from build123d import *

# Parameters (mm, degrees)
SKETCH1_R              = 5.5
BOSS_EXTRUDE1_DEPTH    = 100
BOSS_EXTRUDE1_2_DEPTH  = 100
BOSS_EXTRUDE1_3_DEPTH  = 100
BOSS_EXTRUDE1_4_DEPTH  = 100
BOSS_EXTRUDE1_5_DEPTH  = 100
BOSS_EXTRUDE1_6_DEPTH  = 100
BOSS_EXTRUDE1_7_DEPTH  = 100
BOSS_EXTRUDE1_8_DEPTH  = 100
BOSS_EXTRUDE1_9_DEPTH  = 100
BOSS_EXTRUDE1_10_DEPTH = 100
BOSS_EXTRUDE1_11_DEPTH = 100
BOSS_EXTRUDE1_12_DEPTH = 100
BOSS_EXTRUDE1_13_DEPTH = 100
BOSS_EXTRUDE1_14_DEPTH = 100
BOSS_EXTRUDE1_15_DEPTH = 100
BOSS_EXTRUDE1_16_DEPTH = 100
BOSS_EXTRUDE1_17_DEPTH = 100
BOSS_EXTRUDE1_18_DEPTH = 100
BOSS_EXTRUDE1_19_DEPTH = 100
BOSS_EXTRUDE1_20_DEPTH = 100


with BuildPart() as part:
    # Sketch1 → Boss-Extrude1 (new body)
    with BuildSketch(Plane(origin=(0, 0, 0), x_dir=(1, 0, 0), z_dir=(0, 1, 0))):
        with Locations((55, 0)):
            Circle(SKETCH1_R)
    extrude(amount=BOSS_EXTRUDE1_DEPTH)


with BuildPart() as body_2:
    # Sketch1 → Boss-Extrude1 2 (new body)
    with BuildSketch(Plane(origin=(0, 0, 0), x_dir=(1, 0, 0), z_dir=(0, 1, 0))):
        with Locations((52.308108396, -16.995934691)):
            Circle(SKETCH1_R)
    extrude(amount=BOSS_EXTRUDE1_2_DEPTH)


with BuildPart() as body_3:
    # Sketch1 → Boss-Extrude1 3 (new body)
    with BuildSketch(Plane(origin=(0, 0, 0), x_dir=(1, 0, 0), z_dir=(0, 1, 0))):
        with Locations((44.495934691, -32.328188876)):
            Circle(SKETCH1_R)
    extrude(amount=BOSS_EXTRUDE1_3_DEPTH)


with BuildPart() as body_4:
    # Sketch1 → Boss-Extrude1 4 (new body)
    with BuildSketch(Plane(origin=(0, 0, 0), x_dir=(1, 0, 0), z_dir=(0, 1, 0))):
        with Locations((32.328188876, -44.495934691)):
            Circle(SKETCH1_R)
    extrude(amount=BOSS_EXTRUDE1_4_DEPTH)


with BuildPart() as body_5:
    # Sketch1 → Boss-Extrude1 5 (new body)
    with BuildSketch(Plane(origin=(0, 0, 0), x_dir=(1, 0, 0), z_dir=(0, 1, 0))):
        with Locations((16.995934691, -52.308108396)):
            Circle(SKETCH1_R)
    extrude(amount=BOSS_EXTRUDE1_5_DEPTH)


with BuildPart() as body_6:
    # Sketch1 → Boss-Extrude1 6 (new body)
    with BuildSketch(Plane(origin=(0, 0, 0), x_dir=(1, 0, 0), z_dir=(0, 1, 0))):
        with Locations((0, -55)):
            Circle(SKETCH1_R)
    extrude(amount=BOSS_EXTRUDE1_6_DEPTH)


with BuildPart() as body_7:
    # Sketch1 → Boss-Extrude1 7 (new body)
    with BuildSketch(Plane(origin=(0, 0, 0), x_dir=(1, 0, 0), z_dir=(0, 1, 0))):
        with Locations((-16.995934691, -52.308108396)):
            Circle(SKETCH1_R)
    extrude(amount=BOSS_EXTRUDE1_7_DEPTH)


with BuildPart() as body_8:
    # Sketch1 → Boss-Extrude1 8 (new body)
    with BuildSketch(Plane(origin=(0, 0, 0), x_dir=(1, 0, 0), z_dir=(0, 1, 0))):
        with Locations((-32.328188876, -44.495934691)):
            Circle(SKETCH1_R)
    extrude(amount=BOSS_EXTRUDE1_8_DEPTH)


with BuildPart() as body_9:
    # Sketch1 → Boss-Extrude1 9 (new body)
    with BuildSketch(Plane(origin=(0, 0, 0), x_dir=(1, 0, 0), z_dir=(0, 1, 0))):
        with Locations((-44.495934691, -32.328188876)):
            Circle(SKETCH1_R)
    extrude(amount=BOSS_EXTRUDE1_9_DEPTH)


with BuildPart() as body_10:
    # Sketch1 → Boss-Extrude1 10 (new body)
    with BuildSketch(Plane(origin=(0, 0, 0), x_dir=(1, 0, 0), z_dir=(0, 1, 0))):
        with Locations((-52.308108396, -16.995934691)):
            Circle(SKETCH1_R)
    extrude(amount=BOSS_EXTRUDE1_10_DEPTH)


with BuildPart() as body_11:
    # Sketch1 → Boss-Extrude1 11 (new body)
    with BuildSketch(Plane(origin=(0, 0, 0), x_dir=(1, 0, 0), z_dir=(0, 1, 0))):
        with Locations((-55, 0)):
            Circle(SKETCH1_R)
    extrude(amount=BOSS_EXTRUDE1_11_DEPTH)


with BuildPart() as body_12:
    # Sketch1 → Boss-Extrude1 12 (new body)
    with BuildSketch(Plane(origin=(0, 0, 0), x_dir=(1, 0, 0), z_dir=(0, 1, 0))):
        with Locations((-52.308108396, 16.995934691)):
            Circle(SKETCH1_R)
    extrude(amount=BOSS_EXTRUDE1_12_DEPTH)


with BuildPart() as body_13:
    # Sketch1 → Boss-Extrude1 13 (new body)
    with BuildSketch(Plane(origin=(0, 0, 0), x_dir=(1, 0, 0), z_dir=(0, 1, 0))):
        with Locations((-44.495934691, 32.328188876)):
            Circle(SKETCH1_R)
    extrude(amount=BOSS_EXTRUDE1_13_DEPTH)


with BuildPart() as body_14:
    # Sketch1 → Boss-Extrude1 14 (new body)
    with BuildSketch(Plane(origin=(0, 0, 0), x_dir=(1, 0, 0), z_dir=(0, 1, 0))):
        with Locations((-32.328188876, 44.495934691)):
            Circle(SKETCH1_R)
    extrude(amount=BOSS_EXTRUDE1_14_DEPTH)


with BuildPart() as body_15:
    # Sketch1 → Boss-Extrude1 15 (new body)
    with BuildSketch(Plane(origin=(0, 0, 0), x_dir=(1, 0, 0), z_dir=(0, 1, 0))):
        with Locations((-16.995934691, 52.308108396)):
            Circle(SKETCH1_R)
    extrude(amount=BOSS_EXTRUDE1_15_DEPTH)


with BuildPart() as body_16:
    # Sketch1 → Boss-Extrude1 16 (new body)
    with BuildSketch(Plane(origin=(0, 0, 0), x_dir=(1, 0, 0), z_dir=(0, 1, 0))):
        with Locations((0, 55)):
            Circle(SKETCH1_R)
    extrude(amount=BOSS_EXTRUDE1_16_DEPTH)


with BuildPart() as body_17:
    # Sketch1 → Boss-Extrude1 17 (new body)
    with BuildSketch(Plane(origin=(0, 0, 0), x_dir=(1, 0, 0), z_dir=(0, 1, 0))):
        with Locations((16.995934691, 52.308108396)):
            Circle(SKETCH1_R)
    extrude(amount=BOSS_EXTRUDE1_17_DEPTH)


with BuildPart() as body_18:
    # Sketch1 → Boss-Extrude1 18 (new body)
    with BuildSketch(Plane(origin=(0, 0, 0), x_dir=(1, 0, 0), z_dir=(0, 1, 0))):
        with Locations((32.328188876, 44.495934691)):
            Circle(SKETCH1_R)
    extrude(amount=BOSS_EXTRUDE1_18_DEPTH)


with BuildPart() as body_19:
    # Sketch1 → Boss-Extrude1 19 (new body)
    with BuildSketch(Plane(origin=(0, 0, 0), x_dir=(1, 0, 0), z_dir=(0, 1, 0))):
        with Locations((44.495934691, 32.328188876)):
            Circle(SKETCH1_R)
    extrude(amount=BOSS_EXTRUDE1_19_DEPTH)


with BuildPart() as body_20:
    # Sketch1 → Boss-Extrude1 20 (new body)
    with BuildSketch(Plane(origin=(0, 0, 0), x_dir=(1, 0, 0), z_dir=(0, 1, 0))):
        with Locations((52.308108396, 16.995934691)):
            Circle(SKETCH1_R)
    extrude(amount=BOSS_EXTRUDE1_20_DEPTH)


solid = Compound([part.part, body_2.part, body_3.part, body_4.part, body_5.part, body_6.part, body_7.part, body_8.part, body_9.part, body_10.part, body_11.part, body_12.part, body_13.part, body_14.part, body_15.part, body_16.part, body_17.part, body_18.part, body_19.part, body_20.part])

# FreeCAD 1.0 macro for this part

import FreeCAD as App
import Part
import Sketcher
from FreeCAD import Vector
Q = App.Units.Quantity

doc = App.newDocument("Part")
body = doc.addObject("PartDesign::Body", "Body")

# Sketch on XZ plane
sketch1 = body.newObject("Sketcher::SketchObject", "Sketch")
sketch1.AttachmentSupport = (doc.getObject("XZ_Plane"), [""])
sketch1.MapMode = "FlatFace"
sketch1.addGeometry(Part.Circle(Vector(55, 0, 0), Vector(0, 0, 1), 5.5), False)
sketch1.addConstraint(Sketcher.Constraint("PointOnObject", 0, 3, -1))
sketch1.addConstraint(Sketcher.Constraint("Diameter", 0, Q("11 mm")))
sketch1.addConstraint(Sketcher.Constraint("DistanceX", -1, 1, 0, 3, Q("55 mm")))
pad1 = body.newObject("PartDesign::Pad", "Pad")
pad1.Profile = sketch1
pad1.Length = 100
pad1.Reversed = True
body2 = doc.addObject("PartDesign::Body", "Body001")

# Sketch on XZ plane
sketch2 = body2.newObject("Sketcher::SketchObject", "Sketch001")
sketch2.AttachmentSupport = (doc.getObject("XZ_Plane001"), [""])
sketch2.MapMode = "FlatFace"
sketch2.addGeometry(Part.Circle(Vector(52.308108, 16.995935, 0), Vector(0, 0, 1), 5.5), False)
sketch2.addConstraint(Sketcher.Constraint("Diameter", 0, Q("11 mm")))
sketch2.addConstraint(Sketcher.Constraint("DistanceX", -1, 1, 0, 3, Q("52.308108 mm")))
sketch2.addConstraint(Sketcher.Constraint("DistanceY", -1, 1, 0, 3, Q("16.995935 mm")))
pad2 = body2.newObject("PartDesign::Pad", "Pad001")
pad2.Profile = sketch2
pad2.Length = 100
pad2.Reversed = True
body3 = doc.addObject("PartDesign::Body", "Body002")

# Sketch on XZ plane
sketch3 = body3.newObject("Sketcher::SketchObject", "Sketch002")
sketch3.AttachmentSupport = (doc.getObject("XZ_Plane002"), [""])
sketch3.MapMode = "FlatFace"
sketch3.addGeometry(Part.Circle(Vector(44.495935, 32.328189, 0), Vector(0, 0, 1), 5.5), False)
sketch3.addConstraint(Sketcher.Constraint("Diameter", 0, Q("11 mm")))
sketch3.addConstraint(Sketcher.Constraint("DistanceY", -1, 1, 0, 3, Q("32.328189 mm")))
sketch3.addConstraint(Sketcher.Constraint("DistanceX", -1, 1, 0, 3, Q("44.495935 mm")))
pad3 = body3.newObject("PartDesign::Pad", "Pad002")
pad3.Profile = sketch3
pad3.Length = 100
pad3.Reversed = True
body4 = doc.addObject("PartDesign::Body", "Body003")

# Sketch on XZ plane
sketch4 = body4.newObject("Sketcher::SketchObject", "Sketch003")
sketch4.AttachmentSupport = (doc.getObject("XZ_Plane003"), [""])
sketch4.MapMode = "FlatFace"
sketch4.addGeometry(Part.Circle(Vector(32.328189, 44.495935, 0), Vector(0, 0, 1), 5.5), False)
sketch4.addConstraint(Sketcher.Constraint("Diameter", 0, Q("11 mm")))
sketch4.addConstraint(Sketcher.Constraint("DistanceX", -1, 1, 0, 3, Q("32.328189 mm")))
sketch4.addConstraint(Sketcher.Constraint("DistanceY", -1, 1, 0, 3, Q("44.495935 mm")))
pad4 = body4.newObject("PartDesign::Pad", "Pad003")
pad4.Profile = sketch4
pad4.Length = 100
pad4.Reversed = True
body5 = doc.addObject("PartDesign::Body", "Body004")

# Sketch on XZ plane
sketch5 = body5.newObject("Sketcher::SketchObject", "Sketch004")
sketch5.AttachmentSupport = (doc.getObject("XZ_Plane004"), [""])
sketch5.MapMode = "FlatFace"
sketch5.addGeometry(Part.Circle(Vector(16.995935, 52.308108, 0), Vector(0, 0, 1), 5.5), False)
sketch5.addConstraint(Sketcher.Constraint("Diameter", 0, Q("11 mm")))
sketch5.addConstraint(Sketcher.Constraint("DistanceY", -1, 1, 0, 3, Q("52.308108 mm")))
sketch5.addConstraint(Sketcher.Constraint("DistanceX", -1, 1, 0, 3, Q("16.995935 mm")))
pad5 = body5.newObject("PartDesign::Pad", "Pad004")
pad5.Profile = sketch5
pad5.Length = 100
pad5.Reversed = True
body6 = doc.addObject("PartDesign::Body", "Body005")

# Sketch on XZ plane
sketch6 = body6.newObject("Sketcher::SketchObject", "Sketch005")
sketch6.AttachmentSupport = (doc.getObject("XZ_Plane005"), [""])
sketch6.MapMode = "FlatFace"
sketch6.addGeometry(Part.Circle(Vector(0, 55, 0), Vector(0, 0, 1), 5.5), False)
sketch6.addConstraint(Sketcher.Constraint("PointOnObject", 0, 3, -2))
sketch6.addConstraint(Sketcher.Constraint("Diameter", 0, Q("11 mm")))
sketch6.addConstraint(Sketcher.Constraint("DistanceY", -1, 1, 0, 3, Q("55 mm")))
pad6 = body6.newObject("PartDesign::Pad", "Pad005")
pad6.Profile = sketch6
pad6.Length = 100
pad6.Reversed = True
body7 = doc.addObject("PartDesign::Body", "Body006")

# Sketch on XZ plane
sketch7 = body7.newObject("Sketcher::SketchObject", "Sketch006")
sketch7.AttachmentSupport = (doc.getObject("XZ_Plane006"), [""])
sketch7.MapMode = "FlatFace"
sketch7.addGeometry(Part.Circle(Vector(-16.995935, 52.308108, 0), Vector(0, 0, 1), 5.5), False)
sketch7.addConstraint(Sketcher.Constraint("Diameter", 0, Q("11 mm")))
sketch7.addConstraint(Sketcher.Constraint("DistanceY", -1, 1, 0, 3, Q("52.308108 mm")))
sketch7.addConstraint(Sketcher.Constraint("DistanceX", 0, 3, -1, 1, Q("16.995935 mm")))
pad7 = body7.newObject("PartDesign::Pad", "Pad006")
pad7.Profile = sketch7
pad7.Length = 100
pad7.Reversed = True
body8 = doc.addObject("PartDesign::Body", "Body007")

# Sketch on XZ plane
sketch8 = body8.newObject("Sketcher::SketchObject", "Sketch007")
sketch8.AttachmentSupport = (doc.getObject("XZ_Plane007"), [""])
sketch8.MapMode = "FlatFace"
sketch8.addGeometry(Part.Circle(Vector(-32.328189, 44.495935, 0), Vector(0, 0, 1), 5.5), False)
sketch8.addConstraint(Sketcher.Constraint("Diameter", 0, Q("11 mm")))
sketch8.addConstraint(Sketcher.Constraint("DistanceX", 0, 3, -1, 1, Q("32.328189 mm")))
sketch8.addConstraint(Sketcher.Constraint("DistanceY", -1, 1, 0, 3, Q("44.495935 mm")))
pad8 = body8.newObject("PartDesign::Pad", "Pad007")
pad8.Profile = sketch8
pad8.Length = 100
pad8.Reversed = True
body9 = doc.addObject("PartDesign::Body", "Body008")

# Sketch on XZ plane
sketch9 = body9.newObject("Sketcher::SketchObject", "Sketch008")
sketch9.AttachmentSupport = (doc.getObject("XZ_Plane008"), [""])
sketch9.MapMode = "FlatFace"
sketch9.addGeometry(Part.Circle(Vector(-44.495935, 32.328189, 0), Vector(0, 0, 1), 5.5), False)
sketch9.addConstraint(Sketcher.Constraint("Diameter", 0, Q("11 mm")))
sketch9.addConstraint(Sketcher.Constraint("DistanceY", -1, 1, 0, 3, Q("32.328189 mm")))
sketch9.addConstraint(Sketcher.Constraint("DistanceX", 0, 3, -1, 1, Q("44.495935 mm")))
pad9 = body9.newObject("PartDesign::Pad", "Pad008")
pad9.Profile = sketch9
pad9.Length = 100
pad9.Reversed = True
body10 = doc.addObject("PartDesign::Body", "Body009")

# Sketch on XZ plane
sketch10 = body10.newObject("Sketcher::SketchObject", "Sketch009")
sketch10.AttachmentSupport = (doc.getObject("XZ_Plane009"), [""])
sketch10.MapMode = "FlatFace"
sketch10.addGeometry(Part.Circle(Vector(-52.308108, 16.995935, 0), Vector(0, 0, 1), 5.5), False)
sketch10.addConstraint(Sketcher.Constraint("Diameter", 0, Q("11 mm")))
sketch10.addConstraint(Sketcher.Constraint("DistanceX", 0, 3, -1, 1, Q("52.308108 mm")))
sketch10.addConstraint(Sketcher.Constraint("DistanceY", -1, 1, 0, 3, Q("16.995935 mm")))
pad10 = body10.newObject("PartDesign::Pad", "Pad009")
pad10.Profile = sketch10
pad10.Length = 100
pad10.Reversed = True
body11 = doc.addObject("PartDesign::Body", "Body010")

# Sketch on XZ plane
sketch11 = body11.newObject("Sketcher::SketchObject", "Sketch010")
sketch11.AttachmentSupport = (doc.getObject("XZ_Plane010"), [""])
sketch11.MapMode = "FlatFace"
sketch11.addGeometry(Part.Circle(Vector(-55, 0, 0), Vector(0, 0, 1), 5.5), False)
sketch11.addConstraint(Sketcher.Constraint("PointOnObject", 0, 3, -1))
sketch11.addConstraint(Sketcher.Constraint("Diameter", 0, Q("11 mm")))
sketch11.addConstraint(Sketcher.Constraint("DistanceX", 0, 3, -1, 1, Q("55 mm")))
pad11 = body11.newObject("PartDesign::Pad", "Pad010")
pad11.Profile = sketch11
pad11.Length = 100
pad11.Reversed = True
body12 = doc.addObject("PartDesign::Body", "Body011")

# Sketch on XZ plane
sketch12 = body12.newObject("Sketcher::SketchObject", "Sketch011")
sketch12.AttachmentSupport = (doc.getObject("XZ_Plane011"), [""])
sketch12.MapMode = "FlatFace"
sketch12.addGeometry(Part.Circle(Vector(-52.308108, -16.995935, 0), Vector(0, 0, 1), 5.5), False)
sketch12.addConstraint(Sketcher.Constraint("Diameter", 0, Q("11 mm")))
sketch12.addConstraint(Sketcher.Constraint("DistanceX", 0, 3, -1, 1, Q("52.308108 mm")))
sketch12.addConstraint(Sketcher.Constraint("DistanceY", 0, 3, -1, 1, Q("16.995935 mm")))
pad12 = body12.newObject("PartDesign::Pad", "Pad011")
pad12.Profile = sketch12
pad12.Length = 100
pad12.Reversed = True
body13 = doc.addObject("PartDesign::Body", "Body012")

# Sketch on XZ plane
sketch13 = body13.newObject("Sketcher::SketchObject", "Sketch012")
sketch13.AttachmentSupport = (doc.getObject("XZ_Plane012"), [""])
sketch13.MapMode = "FlatFace"
sketch13.addGeometry(Part.Circle(Vector(-44.495935, -32.328189, 0), Vector(0, 0, 1), 5.5), False)
sketch13.addConstraint(Sketcher.Constraint("Diameter", 0, Q("11 mm")))
sketch13.addConstraint(Sketcher.Constraint("DistanceY", 0, 3, -1, 1, Q("32.328189 mm")))
sketch13.addConstraint(Sketcher.Constraint("DistanceX", 0, 3, -1, 1, Q("44.495935 mm")))
pad13 = body13.newObject("PartDesign::Pad", "Pad012")
pad13.Profile = sketch13
pad13.Length = 100
pad13.Reversed = True
body14 = doc.addObject("PartDesign::Body", "Body013")

# Sketch on XZ plane
sketch14 = body14.newObject("Sketcher::SketchObject", "Sketch013")
sketch14.AttachmentSupport = (doc.getObject("XZ_Plane013"), [""])
sketch14.MapMode = "FlatFace"
sketch14.addGeometry(Part.Circle(Vector(-32.328189, -44.495935, 0), Vector(0, 0, 1), 5.5), False)
sketch14.addConstraint(Sketcher.Constraint("Diameter", 0, Q("11 mm")))
sketch14.addConstraint(Sketcher.Constraint("DistanceX", 0, 3, -1, 1, Q("32.328189 mm")))
sketch14.addConstraint(Sketcher.Constraint("DistanceY", 0, 3, -1, 1, Q("44.495935 mm")))
pad14 = body14.newObject("PartDesign::Pad", "Pad013")
pad14.Profile = sketch14
pad14.Length = 100
pad14.Reversed = True
body15 = doc.addObject("PartDesign::Body", "Body014")

# Sketch on XZ plane
sketch15 = body15.newObject("Sketcher::SketchObject", "Sketch014")
sketch15.AttachmentSupport = (doc.getObject("XZ_Plane014"), [""])
sketch15.MapMode = "FlatFace"
sketch15.addGeometry(Part.Circle(Vector(-16.995935, -52.308108, 0), Vector(0, 0, 1), 5.5), False)
sketch15.addConstraint(Sketcher.Constraint("Diameter", 0, Q("11 mm")))
sketch15.addConstraint(Sketcher.Constraint("DistanceY", 0, 3, -1, 1, Q("52.308108 mm")))
sketch15.addConstraint(Sketcher.Constraint("DistanceX", 0, 3, -1, 1, Q("16.995935 mm")))
pad15 = body15.newObject("PartDesign::Pad", "Pad014")
pad15.Profile = sketch15
pad15.Length = 100
pad15.Reversed = True
body16 = doc.addObject("PartDesign::Body", "Body015")

# Sketch on XZ plane
sketch16 = body16.newObject("Sketcher::SketchObject", "Sketch015")
sketch16.AttachmentSupport = (doc.getObject("XZ_Plane015"), [""])
sketch16.MapMode = "FlatFace"
sketch16.addGeometry(Part.Circle(Vector(0, -55, 0), Vector(0, 0, 1), 5.5), False)
sketch16.addConstraint(Sketcher.Constraint("PointOnObject", 0, 3, -2))
sketch16.addConstraint(Sketcher.Constraint("Diameter", 0, Q("11 mm")))
sketch16.addConstraint(Sketcher.Constraint("DistanceY", 0, 3, -1, 1, Q("55 mm")))
pad16 = body16.newObject("PartDesign::Pad", "Pad015")
pad16.Profile = sketch16
pad16.Length = 100
pad16.Reversed = True
body17 = doc.addObject("PartDesign::Body", "Body016")

# Sketch on XZ plane
sketch17 = body17.newObject("Sketcher::SketchObject", "Sketch016")
sketch17.AttachmentSupport = (doc.getObject("XZ_Plane016"), [""])
sketch17.MapMode = "FlatFace"
sketch17.addGeometry(Part.Circle(Vector(16.995935, -52.308108, 0), Vector(0, 0, 1), 5.5), False)
sketch17.addConstraint(Sketcher.Constraint("Diameter", 0, Q("11 mm")))
sketch17.addConstraint(Sketcher.Constraint("DistanceY", 0, 3, -1, 1, Q("52.308108 mm")))
sketch17.addConstraint(Sketcher.Constraint("DistanceX", -1, 1, 0, 3, Q("16.995935 mm")))
pad17 = body17.newObject("PartDesign::Pad", "Pad016")
pad17.Profile = sketch17
pad17.Length = 100
pad17.Reversed = True
body18 = doc.addObject("PartDesign::Body", "Body017")

# Sketch on XZ plane
sketch18 = body18.newObject("Sketcher::SketchObject", "Sketch017")
sketch18.AttachmentSupport = (doc.getObject("XZ_Plane017"), [""])
sketch18.MapMode = "FlatFace"
sketch18.addGeometry(Part.Circle(Vector(32.328189, -44.495935, 0), Vector(0, 0, 1), 5.5), False)
sketch18.addConstraint(Sketcher.Constraint("Diameter", 0, Q("11 mm")))
sketch18.addConstraint(Sketcher.Constraint("DistanceX", -1, 1, 0, 3, Q("32.328189 mm")))
sketch18.addConstraint(Sketcher.Constraint("DistanceY", 0, 3, -1, 1, Q("44.495935 mm")))
pad18 = body18.newObject("PartDesign::Pad", "Pad017")
pad18.Profile = sketch18
pad18.Length = 100
pad18.Reversed = True
body19 = doc.addObject("PartDesign::Body", "Body018")

# Sketch on XZ plane
sketch19 = body19.newObject("Sketcher::SketchObject", "Sketch018")
sketch19.AttachmentSupport = (doc.getObject("XZ_Plane018"), [""])
sketch19.MapMode = "FlatFace"
sketch19.addGeometry(Part.Circle(Vector(44.495935, -32.328189, 0), Vector(0, 0, 1), 5.5), False)
sketch19.addConstraint(Sketcher.Constraint("Diameter", 0, Q("11 mm")))
sketch19.addConstraint(Sketcher.Constraint("DistanceY", 0, 3, -1, 1, Q("32.328189 mm")))
sketch19.addConstraint(Sketcher.Constraint("DistanceX", -1, 1, 0, 3, Q("44.495935 mm")))
pad19 = body19.newObject("PartDesign::Pad", "Pad018")
pad19.Profile = sketch19
pad19.Length = 100
pad19.Reversed = True
body20 = doc.addObject("PartDesign::Body", "Body019")

# Sketch on XZ plane
sketch20 = body20.newObject("Sketcher::SketchObject", "Sketch019")
sketch20.AttachmentSupport = (doc.getObject("XZ_Plane019"), [""])
sketch20.MapMode = "FlatFace"
sketch20.addGeometry(Part.Circle(Vector(52.308108, -16.995935, 0), Vector(0, 0, 1), 5.5), False)
sketch20.addConstraint(Sketcher.Constraint("Diameter", 0, Q("11 mm")))
sketch20.addConstraint(Sketcher.Constraint("DistanceX", -1, 1, 0, 3, Q("52.308108 mm")))
sketch20.addConstraint(Sketcher.Constraint("DistanceY", 0, 3, -1, 1, Q("16.995935 mm")))
pad20 = body20.newObject("PartDesign::Pad", "Pad019")
pad20.Profile = sketch20
pad20.Length = 100
pad20.Reversed = True

doc.recompute()
